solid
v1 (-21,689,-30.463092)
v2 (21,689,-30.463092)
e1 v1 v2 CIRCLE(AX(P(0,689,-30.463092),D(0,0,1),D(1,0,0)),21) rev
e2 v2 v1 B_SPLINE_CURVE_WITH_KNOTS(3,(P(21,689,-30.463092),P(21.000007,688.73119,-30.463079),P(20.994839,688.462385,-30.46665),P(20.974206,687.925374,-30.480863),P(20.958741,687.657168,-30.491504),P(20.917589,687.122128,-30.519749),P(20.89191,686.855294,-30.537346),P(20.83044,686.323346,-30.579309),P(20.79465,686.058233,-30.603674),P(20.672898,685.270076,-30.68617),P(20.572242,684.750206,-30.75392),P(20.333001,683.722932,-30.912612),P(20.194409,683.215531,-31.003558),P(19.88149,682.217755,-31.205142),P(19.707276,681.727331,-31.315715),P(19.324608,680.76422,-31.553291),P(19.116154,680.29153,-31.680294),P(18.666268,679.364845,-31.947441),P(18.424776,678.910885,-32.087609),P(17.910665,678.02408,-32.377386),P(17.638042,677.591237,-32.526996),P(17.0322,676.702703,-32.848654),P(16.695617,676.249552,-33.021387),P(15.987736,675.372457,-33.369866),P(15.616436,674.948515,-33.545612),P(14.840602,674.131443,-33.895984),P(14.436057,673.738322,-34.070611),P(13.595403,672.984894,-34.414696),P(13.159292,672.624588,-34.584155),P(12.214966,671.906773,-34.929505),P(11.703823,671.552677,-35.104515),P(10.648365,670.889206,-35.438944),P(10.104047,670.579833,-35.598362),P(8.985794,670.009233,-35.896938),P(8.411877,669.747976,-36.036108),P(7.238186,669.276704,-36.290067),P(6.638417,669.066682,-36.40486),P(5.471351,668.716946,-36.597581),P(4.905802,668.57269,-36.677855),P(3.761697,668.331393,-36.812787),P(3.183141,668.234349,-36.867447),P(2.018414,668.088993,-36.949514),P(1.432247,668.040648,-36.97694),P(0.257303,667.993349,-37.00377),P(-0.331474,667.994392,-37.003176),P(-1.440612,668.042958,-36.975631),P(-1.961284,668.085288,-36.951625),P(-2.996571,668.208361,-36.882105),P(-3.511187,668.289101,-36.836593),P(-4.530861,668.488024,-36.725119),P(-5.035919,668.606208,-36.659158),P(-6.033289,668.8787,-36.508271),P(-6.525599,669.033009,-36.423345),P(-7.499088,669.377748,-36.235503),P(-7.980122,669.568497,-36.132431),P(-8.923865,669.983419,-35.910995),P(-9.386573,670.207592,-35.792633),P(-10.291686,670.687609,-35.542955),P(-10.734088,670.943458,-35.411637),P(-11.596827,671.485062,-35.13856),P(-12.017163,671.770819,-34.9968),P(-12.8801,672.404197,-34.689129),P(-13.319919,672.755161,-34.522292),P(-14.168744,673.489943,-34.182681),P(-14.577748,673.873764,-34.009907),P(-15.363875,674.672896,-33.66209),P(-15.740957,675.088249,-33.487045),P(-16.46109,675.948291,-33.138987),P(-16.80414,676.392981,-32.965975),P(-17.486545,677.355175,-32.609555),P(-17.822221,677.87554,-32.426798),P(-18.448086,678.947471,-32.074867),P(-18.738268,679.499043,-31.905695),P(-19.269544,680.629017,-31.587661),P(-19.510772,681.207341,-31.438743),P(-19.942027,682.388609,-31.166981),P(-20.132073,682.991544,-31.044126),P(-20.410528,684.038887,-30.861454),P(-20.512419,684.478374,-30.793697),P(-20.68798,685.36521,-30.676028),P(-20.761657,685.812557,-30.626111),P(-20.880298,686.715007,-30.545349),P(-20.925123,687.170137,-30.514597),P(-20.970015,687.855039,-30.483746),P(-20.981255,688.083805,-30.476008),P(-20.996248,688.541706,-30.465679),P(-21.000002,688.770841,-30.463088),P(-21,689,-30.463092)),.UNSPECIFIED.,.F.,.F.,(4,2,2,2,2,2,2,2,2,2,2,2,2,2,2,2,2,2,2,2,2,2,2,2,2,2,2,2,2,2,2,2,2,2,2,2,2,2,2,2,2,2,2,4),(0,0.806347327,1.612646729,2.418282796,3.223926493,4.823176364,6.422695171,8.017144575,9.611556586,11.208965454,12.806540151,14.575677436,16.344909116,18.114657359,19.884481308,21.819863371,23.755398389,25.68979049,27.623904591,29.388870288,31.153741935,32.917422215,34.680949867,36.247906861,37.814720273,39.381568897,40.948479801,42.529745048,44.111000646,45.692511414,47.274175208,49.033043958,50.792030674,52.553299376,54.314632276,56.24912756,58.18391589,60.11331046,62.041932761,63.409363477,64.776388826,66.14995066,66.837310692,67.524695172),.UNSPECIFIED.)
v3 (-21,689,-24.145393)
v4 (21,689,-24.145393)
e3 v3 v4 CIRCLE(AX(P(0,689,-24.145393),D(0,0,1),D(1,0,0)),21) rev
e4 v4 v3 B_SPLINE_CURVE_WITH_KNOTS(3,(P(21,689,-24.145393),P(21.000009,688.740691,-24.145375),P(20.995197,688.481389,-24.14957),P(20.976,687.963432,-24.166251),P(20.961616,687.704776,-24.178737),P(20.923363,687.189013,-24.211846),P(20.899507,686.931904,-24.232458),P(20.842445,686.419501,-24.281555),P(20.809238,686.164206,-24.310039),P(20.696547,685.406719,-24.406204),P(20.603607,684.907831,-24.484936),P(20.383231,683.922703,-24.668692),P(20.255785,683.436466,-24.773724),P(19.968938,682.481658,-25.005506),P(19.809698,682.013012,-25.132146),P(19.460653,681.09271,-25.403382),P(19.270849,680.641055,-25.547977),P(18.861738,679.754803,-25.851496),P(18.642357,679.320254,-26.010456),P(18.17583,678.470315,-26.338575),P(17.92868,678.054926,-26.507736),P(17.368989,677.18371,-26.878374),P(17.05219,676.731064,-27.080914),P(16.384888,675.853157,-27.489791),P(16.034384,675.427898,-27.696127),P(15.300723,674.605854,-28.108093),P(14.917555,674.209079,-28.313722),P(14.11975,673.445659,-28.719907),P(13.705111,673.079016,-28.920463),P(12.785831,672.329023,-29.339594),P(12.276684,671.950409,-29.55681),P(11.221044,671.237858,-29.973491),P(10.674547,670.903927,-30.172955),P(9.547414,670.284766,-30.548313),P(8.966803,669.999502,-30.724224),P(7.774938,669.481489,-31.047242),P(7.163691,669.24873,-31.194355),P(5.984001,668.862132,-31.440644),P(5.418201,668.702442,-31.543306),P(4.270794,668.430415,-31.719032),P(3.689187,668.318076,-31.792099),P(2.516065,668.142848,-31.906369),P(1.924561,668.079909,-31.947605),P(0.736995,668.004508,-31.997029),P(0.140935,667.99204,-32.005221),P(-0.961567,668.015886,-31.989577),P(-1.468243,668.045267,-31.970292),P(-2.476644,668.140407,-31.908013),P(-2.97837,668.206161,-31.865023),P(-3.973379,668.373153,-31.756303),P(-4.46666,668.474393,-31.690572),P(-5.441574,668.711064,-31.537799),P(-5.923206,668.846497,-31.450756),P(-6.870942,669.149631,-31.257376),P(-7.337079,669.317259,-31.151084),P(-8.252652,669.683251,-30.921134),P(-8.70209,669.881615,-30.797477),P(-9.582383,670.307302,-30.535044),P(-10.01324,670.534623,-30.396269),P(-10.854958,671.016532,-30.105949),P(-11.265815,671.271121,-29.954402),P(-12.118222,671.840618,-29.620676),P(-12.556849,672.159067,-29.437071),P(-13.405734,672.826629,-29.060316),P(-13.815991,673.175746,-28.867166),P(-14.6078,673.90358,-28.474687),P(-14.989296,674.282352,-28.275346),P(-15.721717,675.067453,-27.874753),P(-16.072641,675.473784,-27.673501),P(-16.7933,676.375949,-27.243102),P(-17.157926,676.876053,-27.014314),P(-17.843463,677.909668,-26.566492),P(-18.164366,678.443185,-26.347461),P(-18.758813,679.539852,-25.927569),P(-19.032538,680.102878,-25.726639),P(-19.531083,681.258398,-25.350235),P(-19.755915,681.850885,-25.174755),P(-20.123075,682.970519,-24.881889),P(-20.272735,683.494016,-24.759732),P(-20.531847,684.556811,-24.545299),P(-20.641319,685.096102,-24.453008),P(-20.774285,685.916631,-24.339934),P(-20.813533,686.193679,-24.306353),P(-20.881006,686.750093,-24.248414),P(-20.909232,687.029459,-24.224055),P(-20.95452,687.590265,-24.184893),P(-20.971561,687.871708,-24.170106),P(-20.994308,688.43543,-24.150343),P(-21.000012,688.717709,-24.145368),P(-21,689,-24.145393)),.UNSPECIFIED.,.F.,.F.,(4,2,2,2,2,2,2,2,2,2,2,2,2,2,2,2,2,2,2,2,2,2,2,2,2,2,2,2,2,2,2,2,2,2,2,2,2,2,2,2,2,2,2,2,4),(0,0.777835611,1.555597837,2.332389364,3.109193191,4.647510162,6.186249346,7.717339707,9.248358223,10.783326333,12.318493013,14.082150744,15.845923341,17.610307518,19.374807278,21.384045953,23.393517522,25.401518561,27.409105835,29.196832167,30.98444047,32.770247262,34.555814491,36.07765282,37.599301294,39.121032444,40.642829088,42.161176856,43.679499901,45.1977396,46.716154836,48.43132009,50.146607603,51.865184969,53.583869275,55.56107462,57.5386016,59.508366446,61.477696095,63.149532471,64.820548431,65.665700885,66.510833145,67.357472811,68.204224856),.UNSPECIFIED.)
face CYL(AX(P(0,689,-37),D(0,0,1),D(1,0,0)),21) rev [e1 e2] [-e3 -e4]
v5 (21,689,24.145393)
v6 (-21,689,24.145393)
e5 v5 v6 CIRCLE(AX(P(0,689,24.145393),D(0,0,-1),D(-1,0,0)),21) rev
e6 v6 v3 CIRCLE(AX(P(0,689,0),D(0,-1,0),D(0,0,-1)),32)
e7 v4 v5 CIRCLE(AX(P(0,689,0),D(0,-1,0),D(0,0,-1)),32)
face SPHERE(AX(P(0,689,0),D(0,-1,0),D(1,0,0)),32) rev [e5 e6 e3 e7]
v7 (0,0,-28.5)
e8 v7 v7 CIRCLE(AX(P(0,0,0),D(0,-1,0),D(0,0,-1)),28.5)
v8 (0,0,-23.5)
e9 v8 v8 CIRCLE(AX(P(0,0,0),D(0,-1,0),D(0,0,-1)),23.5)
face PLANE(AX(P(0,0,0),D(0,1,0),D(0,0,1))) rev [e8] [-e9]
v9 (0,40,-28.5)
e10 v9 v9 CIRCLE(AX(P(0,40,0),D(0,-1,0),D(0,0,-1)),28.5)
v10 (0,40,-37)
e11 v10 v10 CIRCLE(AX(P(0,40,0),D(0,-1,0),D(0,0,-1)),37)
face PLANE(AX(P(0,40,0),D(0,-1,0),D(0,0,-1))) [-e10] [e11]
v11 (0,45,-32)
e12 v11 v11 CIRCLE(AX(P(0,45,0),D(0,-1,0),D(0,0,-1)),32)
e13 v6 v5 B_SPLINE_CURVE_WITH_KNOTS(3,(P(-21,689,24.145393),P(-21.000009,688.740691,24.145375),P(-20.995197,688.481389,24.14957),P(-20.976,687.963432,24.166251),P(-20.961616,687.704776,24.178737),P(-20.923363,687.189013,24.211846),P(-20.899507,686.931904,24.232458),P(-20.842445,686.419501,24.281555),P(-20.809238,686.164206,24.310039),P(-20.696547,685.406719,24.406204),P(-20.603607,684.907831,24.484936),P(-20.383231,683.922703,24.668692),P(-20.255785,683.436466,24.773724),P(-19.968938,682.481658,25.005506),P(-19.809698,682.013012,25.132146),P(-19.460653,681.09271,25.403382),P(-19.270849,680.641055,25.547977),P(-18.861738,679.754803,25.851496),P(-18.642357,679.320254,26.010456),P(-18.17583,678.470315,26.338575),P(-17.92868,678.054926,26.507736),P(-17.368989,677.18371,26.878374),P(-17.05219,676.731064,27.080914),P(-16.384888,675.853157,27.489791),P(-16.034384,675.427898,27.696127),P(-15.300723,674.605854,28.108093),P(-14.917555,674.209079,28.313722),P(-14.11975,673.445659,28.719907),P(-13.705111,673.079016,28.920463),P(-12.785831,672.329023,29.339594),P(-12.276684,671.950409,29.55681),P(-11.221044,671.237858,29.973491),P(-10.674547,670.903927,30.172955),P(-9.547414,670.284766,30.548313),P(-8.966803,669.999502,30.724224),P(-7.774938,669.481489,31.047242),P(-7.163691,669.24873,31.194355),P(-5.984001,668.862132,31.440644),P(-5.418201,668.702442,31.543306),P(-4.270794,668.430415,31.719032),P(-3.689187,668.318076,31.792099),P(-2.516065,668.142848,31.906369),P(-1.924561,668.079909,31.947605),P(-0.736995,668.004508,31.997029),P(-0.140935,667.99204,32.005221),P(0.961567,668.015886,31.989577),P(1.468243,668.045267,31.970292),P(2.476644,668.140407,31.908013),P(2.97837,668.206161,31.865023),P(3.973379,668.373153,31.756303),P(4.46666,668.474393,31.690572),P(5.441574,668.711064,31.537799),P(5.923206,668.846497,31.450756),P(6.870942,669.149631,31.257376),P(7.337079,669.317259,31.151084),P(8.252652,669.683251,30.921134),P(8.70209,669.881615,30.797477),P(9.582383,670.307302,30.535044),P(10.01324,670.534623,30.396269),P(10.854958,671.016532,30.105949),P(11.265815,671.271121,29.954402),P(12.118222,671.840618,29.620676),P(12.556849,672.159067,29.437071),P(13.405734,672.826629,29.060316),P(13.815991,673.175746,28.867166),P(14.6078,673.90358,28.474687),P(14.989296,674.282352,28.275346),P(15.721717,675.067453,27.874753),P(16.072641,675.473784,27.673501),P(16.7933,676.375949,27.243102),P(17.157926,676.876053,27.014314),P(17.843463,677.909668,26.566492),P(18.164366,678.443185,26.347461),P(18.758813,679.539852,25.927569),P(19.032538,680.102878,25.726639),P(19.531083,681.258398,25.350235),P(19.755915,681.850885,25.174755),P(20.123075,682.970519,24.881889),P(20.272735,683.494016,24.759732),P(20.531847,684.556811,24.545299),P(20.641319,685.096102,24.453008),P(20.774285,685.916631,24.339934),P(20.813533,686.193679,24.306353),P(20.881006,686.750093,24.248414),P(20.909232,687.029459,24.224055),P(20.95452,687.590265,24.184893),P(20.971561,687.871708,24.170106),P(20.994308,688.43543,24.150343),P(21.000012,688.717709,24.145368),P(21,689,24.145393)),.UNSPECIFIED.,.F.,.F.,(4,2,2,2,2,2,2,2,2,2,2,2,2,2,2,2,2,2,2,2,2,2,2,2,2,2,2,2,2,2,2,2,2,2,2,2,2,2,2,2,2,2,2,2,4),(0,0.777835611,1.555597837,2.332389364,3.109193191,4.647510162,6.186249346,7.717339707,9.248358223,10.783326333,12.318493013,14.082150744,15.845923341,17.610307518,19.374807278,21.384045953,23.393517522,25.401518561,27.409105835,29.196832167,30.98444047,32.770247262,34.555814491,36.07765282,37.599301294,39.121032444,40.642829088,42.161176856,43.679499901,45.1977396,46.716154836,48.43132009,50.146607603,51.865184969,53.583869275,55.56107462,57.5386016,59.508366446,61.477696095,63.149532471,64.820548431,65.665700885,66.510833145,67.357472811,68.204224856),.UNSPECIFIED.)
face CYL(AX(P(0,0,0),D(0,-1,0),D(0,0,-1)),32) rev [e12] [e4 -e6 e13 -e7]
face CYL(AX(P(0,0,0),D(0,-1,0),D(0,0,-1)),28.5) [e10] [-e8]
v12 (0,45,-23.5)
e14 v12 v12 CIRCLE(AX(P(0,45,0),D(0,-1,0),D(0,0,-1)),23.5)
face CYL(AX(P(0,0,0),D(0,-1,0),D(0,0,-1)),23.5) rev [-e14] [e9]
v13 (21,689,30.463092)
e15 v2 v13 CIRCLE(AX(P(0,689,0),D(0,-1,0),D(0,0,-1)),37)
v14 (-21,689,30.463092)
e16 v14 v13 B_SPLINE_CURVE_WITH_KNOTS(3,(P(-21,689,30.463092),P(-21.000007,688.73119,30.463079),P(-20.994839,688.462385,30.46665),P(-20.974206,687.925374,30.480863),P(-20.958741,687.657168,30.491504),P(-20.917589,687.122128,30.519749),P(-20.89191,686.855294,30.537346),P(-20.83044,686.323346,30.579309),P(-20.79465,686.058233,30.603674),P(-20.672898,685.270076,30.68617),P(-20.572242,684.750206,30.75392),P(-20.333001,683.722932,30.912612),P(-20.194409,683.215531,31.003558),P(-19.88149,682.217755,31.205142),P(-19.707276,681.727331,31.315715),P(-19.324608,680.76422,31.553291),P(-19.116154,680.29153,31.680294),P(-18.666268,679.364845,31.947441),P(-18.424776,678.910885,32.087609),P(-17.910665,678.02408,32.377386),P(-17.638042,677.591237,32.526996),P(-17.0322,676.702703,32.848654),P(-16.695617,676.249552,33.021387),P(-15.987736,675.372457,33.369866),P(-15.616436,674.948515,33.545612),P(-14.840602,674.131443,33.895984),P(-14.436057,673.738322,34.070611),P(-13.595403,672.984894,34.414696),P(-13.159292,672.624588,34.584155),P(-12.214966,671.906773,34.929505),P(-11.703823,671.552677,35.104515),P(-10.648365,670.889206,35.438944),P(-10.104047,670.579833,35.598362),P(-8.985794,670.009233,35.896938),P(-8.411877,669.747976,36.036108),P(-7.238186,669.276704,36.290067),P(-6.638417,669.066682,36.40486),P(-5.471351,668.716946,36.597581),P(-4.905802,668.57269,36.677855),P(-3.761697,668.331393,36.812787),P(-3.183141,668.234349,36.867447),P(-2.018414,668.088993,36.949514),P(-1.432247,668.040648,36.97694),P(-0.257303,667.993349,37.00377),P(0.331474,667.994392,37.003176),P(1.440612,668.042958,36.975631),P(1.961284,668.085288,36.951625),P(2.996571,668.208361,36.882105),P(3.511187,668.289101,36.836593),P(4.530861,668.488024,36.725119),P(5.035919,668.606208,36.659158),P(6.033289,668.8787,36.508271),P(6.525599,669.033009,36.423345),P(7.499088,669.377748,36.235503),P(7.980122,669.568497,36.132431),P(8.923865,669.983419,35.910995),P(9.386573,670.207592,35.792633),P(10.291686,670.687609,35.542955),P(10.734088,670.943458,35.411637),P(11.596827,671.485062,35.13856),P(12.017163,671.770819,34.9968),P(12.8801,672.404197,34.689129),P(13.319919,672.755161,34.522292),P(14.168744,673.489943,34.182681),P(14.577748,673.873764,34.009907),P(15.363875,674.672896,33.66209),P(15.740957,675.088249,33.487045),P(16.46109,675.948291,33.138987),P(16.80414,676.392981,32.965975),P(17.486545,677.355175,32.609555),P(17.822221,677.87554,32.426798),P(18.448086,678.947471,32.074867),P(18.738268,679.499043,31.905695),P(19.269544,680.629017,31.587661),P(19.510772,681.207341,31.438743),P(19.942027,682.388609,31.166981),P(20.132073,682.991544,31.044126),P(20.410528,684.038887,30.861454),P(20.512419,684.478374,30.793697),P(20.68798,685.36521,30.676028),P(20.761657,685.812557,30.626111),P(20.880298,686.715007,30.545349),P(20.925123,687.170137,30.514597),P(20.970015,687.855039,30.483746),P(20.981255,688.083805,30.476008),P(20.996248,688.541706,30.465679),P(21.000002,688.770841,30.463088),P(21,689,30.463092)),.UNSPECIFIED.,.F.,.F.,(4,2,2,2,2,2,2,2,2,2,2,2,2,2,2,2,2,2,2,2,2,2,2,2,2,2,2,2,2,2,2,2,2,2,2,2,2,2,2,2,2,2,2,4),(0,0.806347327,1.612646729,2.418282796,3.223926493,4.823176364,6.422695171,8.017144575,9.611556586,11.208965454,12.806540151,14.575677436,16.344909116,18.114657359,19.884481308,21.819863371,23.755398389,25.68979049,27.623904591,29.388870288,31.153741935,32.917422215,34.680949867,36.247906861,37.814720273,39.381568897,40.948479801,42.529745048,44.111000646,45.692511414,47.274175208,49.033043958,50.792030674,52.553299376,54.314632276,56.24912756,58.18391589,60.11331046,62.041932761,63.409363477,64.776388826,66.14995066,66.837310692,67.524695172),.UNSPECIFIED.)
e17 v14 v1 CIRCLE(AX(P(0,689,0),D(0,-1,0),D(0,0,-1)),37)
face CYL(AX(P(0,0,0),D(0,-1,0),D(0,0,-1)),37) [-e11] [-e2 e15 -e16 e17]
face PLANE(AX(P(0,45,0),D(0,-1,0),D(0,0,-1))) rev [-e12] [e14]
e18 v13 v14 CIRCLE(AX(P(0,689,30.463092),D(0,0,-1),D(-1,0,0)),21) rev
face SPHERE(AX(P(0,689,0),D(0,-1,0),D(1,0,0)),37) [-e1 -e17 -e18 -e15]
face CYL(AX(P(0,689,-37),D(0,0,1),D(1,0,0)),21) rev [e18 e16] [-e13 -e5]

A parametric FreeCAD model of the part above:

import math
import FreeCAD as App
import Part
import Sketcher
Q = App.Units.Quantity

doc = App.newDocument("Part")
body = doc.addObject("PartDesign::Body", "Body")

sketch1 = body.newObject("Sketcher::SketchObject", "Sketch")
sketch1.AttachmentSupport = (doc.getObject("XY_Plane"), [""])
sketch1.MapMode = "FlatFace"
sketch1.addGeometry([
    Part.LineSegment(App.Vector(24, 0, 0), App.Vector(28, 0, 0)),
    Part.LineSegment(App.Vector(28, 0, 0), App.Vector(28, 40, 0)),
    Part.LineSegment(App.Vector(28, 40, 0), App.Vector(37, 40, 0)),
    Part.LineSegment(App.Vector(37, 40, 0), App.Vector(37, 689, 0)),
    Part.ArcOfCircle(Part.Circle(App.Vector(0, 689, 0), App.Vector(0, 0, 1), 37), math.radians(0), math.radians(90)),
    Part.LineSegment(App.Vector(0, 726, 0), App.Vector(0, 721, 0)),
    Part.ArcOfCircle(Part.Circle(App.Vector(0, 689, 0), App.Vector(0, 0, 1), 32), math.radians(0), math.radians(90)),
    Part.LineSegment(App.Vector(32, 689, 0), App.Vector(32, 45, 0)),
    Part.LineSegment(App.Vector(32, 45, 0), App.Vector(24, 45, 0)),
    Part.LineSegment(App.Vector(24, 45, 0), App.Vector(24, 0, 0)),
], False)
sketch1.addConstraint([
    Sketcher.Constraint("Coincident", 0, 2, 1, 1),
    Sketcher.Constraint("Coincident", 1, 2, 2, 1),
    Sketcher.Constraint("Coincident", 2, 2, 3, 1),
    Sketcher.Constraint("Tangent", 3, 2, 4, 1),
    Sketcher.Constraint("Coincident", 4, 2, 5, 1),
    Sketcher.Constraint("Coincident", 5, 2, 6, 2),
    Sketcher.Constraint("Tangent", 6, 1, 7, 1),
    Sketcher.Constraint("Coincident", 7, 2, 8, 1),
    Sketcher.Constraint("Coincident", 8, 2, 9, 1),
    Sketcher.Constraint("Coincident", 9, 2, 0, 1),
    Sketcher.Constraint("Horizontal", 0),
    Sketcher.Constraint("Vertical", 1),
    Sketcher.Constraint("Horizontal", 2),
    Sketcher.Constraint("Vertical", 3),
    Sketcher.Constraint("Vertical", 5),
    Sketcher.Constraint("Vertical", 7),
    Sketcher.Constraint("Horizontal", 8),
    Sketcher.Constraint("Vertical", 9),
    Sketcher.Constraint("Coincident", 6, 3, 4, 3),
    Sketcher.Constraint("PointOnObject", 4, 3, -2),
    Sketcher.Constraint("PointOnObject", 0, 2, -1),
    Sketcher.Constraint("PointOnObject", 4, 2, -2),
    Sketcher.Constraint("Equal", 2, 8),
    Sketcher.Constraint("Radius", 4, Q("37 mm")),
    Sketcher.Constraint("Radius", 6, Q("32 mm")),
    Sketcher.Constraint("DistanceY", 1, 1, 1, 2, Q("40 mm")),
    Sketcher.Constraint("DistanceY", 3, 1, 3, 2, Q("649 mm")),
    Sketcher.Constraint("DistanceY", 7, 2, 7, 1, Q("644 mm")),
    Sketcher.Constraint("DistanceX", 2, 1, 2, 2, Q("8.5 mm")),
])
revolution = body.newObject("PartDesign::Revolution", "Revolution")
revolution.Profile = sketch1
revolution.ReferenceAxis = (sketch1, ["V_Axis"])
revolution.Angle = 360

sketch2 = body.newObject("Sketcher::SketchObject", "Sketch001")
sketch2.AttachmentSupport = (doc.getObject("XY_Plane"), [""])
sketch2.MapMode = "FlatFace"
sketch2.addGeometry(Part.Circle(App.Vector(0, 689, 0), App.Vector(0, 0, 1), 21), False)
sketch2.addConstraint([
    Sketcher.Constraint("PointOnObject", 0, 3, -2),
    Sketcher.Constraint("Diameter", 0, Q("42 mm")),
    Sketcher.Constraint("DistanceY", -1, 1, 0, 3, Q("689 mm")),
])
pocket1 = body.newObject("PartDesign::Pocket", "Pocket")
pocket1.Profile = sketch2
pocket1.Type = "ThroughAll"
pocket1.Midplane = True

doc.recompute()
